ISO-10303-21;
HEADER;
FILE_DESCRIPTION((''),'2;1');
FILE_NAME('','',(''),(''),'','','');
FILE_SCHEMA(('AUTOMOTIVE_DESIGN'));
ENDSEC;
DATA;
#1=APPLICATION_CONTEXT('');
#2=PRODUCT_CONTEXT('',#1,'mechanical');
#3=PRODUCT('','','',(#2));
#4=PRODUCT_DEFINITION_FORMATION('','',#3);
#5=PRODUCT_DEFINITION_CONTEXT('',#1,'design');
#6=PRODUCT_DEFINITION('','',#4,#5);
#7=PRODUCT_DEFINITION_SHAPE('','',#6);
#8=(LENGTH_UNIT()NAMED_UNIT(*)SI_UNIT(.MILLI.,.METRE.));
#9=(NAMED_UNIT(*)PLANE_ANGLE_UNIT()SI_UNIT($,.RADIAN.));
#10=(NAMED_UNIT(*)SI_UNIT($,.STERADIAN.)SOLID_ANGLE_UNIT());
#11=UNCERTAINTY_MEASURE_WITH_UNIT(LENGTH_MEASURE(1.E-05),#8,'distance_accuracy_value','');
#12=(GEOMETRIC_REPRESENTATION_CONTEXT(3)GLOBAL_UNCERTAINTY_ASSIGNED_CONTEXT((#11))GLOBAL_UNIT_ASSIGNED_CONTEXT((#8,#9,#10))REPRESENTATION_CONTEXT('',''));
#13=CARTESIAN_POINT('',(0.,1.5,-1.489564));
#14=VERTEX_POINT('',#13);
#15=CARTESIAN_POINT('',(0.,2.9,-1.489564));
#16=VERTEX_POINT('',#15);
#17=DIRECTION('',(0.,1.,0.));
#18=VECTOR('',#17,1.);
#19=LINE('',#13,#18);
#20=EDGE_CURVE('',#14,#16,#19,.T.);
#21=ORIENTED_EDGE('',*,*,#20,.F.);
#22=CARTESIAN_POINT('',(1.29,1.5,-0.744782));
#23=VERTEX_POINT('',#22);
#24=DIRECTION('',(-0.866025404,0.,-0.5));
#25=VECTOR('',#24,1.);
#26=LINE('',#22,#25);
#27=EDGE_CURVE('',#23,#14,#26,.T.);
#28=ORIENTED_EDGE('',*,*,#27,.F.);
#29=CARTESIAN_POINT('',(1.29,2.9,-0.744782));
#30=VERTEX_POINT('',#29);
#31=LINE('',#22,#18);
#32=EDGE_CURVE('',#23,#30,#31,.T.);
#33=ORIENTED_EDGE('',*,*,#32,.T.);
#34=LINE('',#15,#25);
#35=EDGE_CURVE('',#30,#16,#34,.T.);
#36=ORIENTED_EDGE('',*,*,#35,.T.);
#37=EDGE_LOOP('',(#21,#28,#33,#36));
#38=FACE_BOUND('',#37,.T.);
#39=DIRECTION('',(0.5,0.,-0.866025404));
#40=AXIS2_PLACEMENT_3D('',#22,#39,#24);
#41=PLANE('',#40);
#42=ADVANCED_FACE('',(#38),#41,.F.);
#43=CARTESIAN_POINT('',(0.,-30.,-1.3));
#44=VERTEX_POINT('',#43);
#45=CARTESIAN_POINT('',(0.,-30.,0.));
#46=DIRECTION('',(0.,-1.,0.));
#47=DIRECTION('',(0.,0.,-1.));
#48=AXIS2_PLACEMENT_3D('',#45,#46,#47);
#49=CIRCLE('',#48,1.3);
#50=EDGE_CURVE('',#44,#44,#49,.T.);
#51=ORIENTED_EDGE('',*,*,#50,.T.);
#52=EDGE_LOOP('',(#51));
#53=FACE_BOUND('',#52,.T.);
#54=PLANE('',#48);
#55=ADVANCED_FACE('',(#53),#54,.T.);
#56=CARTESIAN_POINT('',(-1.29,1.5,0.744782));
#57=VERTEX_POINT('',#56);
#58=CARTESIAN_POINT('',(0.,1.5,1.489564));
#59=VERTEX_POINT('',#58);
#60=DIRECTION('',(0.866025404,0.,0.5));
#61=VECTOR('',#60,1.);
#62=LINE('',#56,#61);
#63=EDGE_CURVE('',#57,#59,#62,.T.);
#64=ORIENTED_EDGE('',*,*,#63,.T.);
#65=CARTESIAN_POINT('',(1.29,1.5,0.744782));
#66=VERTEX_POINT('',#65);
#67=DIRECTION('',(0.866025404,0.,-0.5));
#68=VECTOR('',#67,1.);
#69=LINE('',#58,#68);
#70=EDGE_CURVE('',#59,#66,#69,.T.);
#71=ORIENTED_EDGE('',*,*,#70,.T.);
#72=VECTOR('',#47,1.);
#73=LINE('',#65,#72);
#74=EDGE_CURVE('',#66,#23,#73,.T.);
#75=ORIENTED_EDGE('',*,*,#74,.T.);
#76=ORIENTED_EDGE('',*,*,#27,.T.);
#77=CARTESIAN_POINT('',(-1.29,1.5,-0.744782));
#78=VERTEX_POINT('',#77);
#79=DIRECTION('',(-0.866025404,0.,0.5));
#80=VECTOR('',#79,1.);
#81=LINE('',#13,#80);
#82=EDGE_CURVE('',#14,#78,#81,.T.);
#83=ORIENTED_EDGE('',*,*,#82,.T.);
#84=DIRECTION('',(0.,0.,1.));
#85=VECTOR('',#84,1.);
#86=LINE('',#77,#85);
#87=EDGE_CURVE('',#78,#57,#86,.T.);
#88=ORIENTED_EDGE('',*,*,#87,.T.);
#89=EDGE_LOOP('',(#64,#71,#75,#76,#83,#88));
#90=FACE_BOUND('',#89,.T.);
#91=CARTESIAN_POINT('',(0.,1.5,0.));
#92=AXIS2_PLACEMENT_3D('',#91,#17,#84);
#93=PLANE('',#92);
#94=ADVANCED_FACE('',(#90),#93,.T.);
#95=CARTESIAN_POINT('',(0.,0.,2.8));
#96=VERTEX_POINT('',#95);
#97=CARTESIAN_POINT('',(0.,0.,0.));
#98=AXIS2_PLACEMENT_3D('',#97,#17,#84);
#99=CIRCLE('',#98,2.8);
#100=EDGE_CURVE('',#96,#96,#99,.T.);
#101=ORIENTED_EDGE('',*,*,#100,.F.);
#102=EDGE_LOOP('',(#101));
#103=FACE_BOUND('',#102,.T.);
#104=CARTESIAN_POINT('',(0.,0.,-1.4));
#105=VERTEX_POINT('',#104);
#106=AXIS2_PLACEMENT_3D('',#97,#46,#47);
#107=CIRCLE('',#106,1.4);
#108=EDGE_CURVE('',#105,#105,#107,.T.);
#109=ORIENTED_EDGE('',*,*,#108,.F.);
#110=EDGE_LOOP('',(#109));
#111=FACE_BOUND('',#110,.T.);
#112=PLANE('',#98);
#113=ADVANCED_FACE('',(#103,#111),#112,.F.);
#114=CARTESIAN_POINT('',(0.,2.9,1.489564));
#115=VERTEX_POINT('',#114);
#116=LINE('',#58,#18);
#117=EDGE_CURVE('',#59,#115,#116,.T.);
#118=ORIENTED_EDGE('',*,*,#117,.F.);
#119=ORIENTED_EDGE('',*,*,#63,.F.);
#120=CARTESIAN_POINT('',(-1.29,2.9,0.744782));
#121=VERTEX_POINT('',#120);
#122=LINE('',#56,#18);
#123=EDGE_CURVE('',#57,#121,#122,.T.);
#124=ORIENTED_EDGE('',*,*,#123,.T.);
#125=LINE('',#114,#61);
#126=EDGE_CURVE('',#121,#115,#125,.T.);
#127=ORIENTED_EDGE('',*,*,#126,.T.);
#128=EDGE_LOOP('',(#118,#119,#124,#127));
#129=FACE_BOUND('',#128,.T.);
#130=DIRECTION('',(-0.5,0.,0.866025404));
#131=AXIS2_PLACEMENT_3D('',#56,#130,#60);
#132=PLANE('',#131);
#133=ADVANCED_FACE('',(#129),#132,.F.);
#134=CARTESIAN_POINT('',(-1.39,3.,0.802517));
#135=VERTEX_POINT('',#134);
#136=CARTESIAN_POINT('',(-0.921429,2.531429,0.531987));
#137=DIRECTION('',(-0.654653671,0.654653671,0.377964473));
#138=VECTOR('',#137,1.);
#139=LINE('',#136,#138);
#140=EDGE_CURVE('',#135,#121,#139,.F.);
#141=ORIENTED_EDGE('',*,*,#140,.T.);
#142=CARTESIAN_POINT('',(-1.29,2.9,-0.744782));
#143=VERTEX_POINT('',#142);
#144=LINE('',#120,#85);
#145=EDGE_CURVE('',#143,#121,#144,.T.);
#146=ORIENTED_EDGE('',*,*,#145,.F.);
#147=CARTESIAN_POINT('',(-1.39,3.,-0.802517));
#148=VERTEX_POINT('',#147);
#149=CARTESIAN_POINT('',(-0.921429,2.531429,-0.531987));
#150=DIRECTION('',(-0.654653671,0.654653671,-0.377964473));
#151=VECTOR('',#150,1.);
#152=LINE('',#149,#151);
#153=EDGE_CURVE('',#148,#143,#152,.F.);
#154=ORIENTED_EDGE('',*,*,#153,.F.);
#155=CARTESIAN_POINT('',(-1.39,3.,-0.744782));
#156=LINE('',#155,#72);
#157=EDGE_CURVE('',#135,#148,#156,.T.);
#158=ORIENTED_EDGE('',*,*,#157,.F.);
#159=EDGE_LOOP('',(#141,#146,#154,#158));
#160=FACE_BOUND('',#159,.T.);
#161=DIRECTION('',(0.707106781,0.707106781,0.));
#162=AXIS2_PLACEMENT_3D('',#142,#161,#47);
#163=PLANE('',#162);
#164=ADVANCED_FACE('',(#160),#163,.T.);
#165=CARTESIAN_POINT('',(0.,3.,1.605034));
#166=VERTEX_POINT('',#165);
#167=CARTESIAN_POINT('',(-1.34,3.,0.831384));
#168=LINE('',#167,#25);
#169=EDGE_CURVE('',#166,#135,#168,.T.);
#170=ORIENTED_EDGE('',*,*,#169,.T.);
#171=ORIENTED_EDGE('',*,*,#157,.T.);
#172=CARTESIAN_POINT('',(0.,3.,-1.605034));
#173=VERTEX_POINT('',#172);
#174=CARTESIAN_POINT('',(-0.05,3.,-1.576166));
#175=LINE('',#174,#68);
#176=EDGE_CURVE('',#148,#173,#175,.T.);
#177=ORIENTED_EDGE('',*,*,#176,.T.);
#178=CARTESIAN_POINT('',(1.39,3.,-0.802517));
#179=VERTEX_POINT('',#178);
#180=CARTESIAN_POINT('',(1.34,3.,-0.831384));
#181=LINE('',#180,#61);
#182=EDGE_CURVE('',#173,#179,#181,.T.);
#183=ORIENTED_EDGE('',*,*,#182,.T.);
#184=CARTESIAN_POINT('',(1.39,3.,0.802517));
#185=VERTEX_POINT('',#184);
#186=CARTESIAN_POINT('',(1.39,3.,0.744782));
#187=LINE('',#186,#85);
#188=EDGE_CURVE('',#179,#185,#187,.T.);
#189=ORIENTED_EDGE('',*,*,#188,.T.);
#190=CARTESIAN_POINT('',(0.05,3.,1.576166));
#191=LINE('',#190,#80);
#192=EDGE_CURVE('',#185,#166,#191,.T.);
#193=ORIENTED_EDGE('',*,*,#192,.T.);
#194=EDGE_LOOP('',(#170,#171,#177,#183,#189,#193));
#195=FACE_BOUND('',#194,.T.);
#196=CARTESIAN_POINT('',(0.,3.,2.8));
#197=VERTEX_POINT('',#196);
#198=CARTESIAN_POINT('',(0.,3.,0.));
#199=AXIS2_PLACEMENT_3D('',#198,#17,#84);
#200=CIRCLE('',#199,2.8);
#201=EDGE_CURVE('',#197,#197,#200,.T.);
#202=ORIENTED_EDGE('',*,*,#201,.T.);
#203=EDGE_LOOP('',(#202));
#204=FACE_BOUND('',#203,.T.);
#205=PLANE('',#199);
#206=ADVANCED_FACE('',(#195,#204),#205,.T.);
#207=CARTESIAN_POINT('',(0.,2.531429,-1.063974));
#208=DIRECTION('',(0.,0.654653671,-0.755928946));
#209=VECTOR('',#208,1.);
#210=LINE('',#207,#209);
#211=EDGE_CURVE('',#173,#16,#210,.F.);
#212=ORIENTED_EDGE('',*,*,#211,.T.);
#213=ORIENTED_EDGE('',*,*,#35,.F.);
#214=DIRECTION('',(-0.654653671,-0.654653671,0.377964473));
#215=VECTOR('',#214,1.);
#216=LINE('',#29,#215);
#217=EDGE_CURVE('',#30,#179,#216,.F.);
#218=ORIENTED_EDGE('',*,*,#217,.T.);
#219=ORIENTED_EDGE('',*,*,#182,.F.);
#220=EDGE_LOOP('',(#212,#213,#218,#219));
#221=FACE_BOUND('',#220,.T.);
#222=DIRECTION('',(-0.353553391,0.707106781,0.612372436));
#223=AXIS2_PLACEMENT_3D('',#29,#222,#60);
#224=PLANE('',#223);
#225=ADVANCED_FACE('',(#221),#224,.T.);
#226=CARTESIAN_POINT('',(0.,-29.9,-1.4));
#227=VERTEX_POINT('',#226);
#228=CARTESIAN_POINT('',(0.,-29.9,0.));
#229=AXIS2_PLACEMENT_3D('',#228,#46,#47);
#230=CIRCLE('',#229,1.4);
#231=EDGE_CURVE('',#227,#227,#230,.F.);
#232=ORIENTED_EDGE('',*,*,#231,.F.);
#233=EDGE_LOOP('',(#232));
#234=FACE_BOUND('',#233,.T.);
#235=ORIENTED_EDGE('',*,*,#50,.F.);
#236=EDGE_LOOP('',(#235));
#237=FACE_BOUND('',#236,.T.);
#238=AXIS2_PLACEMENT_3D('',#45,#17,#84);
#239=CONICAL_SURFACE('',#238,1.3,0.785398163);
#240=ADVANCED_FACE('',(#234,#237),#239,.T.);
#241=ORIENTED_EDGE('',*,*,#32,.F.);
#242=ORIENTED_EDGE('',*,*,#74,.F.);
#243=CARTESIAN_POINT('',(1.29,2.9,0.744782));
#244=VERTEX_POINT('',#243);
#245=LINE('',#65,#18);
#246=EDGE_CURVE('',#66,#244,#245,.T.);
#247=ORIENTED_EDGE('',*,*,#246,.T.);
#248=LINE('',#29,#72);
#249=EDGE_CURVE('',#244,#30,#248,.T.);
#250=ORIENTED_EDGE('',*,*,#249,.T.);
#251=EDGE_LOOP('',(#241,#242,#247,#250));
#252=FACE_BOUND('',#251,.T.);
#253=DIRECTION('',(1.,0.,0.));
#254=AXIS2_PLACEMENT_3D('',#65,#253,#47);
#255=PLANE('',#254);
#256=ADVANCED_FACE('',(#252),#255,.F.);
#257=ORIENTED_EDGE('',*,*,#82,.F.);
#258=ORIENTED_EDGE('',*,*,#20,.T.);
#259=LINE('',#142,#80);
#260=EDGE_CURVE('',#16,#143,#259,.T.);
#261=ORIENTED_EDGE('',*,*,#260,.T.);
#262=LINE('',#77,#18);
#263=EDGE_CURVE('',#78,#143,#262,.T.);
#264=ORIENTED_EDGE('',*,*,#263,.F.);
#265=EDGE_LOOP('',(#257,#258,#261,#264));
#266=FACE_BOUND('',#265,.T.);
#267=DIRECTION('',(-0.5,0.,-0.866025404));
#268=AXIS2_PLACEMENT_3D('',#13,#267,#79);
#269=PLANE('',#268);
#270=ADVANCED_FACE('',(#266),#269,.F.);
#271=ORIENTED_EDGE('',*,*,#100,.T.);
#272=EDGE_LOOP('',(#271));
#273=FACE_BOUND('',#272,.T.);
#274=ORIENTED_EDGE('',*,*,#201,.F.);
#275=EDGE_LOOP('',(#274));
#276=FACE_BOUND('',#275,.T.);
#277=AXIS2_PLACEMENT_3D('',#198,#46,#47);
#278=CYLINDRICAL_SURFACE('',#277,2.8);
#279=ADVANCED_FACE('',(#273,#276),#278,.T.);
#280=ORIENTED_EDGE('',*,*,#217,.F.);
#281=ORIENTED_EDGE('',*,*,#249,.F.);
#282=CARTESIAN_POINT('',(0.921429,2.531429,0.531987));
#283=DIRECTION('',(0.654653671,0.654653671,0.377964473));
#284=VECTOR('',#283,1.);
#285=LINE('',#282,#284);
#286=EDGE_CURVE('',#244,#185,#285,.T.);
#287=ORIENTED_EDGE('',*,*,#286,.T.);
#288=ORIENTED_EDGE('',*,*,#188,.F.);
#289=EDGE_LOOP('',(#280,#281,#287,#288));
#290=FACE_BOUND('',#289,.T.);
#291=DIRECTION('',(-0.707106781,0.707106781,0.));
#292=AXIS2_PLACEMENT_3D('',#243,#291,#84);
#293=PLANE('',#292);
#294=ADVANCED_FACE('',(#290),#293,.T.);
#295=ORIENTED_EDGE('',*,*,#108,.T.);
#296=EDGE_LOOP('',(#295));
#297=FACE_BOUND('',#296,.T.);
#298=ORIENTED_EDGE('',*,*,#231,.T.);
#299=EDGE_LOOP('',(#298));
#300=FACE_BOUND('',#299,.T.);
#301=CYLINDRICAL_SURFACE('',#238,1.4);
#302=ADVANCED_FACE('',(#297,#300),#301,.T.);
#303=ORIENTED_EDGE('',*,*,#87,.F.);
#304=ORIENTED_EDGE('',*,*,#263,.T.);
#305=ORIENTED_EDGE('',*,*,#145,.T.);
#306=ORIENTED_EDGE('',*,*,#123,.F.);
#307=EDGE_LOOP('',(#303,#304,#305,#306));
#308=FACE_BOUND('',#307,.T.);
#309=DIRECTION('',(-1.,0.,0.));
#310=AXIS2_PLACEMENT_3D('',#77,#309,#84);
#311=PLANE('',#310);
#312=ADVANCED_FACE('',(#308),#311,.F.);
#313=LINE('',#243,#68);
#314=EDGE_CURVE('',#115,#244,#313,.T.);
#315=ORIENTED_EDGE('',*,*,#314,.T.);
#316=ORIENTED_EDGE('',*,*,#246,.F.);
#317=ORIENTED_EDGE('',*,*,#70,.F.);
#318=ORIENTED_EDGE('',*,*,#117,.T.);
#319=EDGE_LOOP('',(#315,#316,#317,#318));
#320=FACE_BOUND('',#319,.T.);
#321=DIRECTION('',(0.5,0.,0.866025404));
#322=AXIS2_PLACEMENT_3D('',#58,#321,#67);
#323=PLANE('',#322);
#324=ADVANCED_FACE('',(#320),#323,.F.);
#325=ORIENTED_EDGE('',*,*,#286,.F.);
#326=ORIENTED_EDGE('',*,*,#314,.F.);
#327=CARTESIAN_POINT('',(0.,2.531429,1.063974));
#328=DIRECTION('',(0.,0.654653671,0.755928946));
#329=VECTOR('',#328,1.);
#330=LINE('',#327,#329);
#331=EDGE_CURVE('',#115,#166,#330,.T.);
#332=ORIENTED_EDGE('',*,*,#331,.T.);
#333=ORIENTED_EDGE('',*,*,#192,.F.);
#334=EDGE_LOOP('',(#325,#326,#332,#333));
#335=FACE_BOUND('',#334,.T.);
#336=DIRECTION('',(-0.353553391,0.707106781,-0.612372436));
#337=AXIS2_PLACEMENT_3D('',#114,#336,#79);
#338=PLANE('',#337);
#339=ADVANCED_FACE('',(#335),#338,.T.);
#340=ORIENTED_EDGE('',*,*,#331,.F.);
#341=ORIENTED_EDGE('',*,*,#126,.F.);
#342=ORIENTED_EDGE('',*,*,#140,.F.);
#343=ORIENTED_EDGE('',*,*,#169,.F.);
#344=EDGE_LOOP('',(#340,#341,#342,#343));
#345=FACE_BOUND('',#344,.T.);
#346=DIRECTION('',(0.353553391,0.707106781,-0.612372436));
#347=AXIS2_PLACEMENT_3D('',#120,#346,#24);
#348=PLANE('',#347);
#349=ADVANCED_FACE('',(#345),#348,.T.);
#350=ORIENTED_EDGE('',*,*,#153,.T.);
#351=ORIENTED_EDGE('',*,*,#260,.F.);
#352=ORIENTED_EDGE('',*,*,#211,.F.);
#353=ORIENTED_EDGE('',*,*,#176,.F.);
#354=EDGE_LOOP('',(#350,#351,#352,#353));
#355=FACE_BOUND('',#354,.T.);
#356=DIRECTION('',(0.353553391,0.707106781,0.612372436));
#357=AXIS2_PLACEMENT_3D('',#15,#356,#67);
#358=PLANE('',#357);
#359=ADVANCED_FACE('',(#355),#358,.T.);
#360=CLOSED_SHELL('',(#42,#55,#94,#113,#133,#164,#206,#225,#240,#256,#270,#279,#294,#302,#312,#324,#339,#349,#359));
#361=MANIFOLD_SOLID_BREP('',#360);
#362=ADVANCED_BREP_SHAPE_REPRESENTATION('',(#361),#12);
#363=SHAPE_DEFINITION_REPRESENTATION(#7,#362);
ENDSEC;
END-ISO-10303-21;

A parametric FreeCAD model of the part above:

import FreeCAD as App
import Part
import Sketcher
from FreeCAD import Vector
Q = App.Units.Quantity


def edges_at(feature, points):
    """Names of the edges that pass closest to the given points."""
    edges = feature.Shape.Edges
    near = lambda p: min(range(len(edges)), key=lambda i: edges[i].distToShape(Part.Vertex(*p))[0])
    return sorted({f"Edge{near(p) + 1}" for p in points})


def add_polygon(sketch, points):
    """Adds a closed chain of lines whose ends are joined by coincident constraints."""
    first, n = sketch.GeometryCount, len(points)
    for a, b in zip(points, points[1:] + points[:1]):
        sketch.addGeometry(Part.LineSegment(App.Vector(*a, 0), App.Vector(*b, 0)), False)
    for i in range(n):
        sketch.addConstraint(Sketcher.Constraint("Coincident", first + i, 2, first + (i + 1) % n, 1))

doc = App.newDocument("Part")
body = doc.addObject("PartDesign::Body", "Body")

# Sketch on XZ plane
sketch1 = body.newObject("Sketcher::SketchObject", "Sketch")
sketch1.AttachmentSupport = (doc.getObject("XZ_Plane"), [""])
sketch1.MapMode = "FlatFace"
sketch1.addGeometry(Part.Circle(Vector(0, 0, 0), Vector(0, 0, 1), 2.8), False)
sketch1.addConstraint([
    Sketcher.Constraint("Coincident", 0, 3, -1, 1),
    Sketcher.Constraint("Diameter", 0, 5.6),
])
pad1 = body.newObject("PartDesign::Pad", "Pad")
pad1.Profile = sketch1
pad1.Length = 3
pad1.Reversed = True

# Sketch on XZ plane
sketch2 = body.newObject("Sketcher::SketchObject", "Sketch001")
sketch2.AttachmentSupport = (doc.getObject("XZ_Plane"), [""])
sketch2.MapMode = "FlatFace"
sketch2.AttachmentOffset = App.Placement(Vector(0, 0, -3), App.Rotation())
add_polygon(sketch2, [(0, 1.489564), (1.29, 0.744782), (1.29, -0.744782), (0, -1.489564), (-1.29, -0.744782), (-1.29, 0.744782)])  # lines 0-5
sketch2.addConstraint([
    Sketcher.Constraint("Vertical", 1),
    Sketcher.Constraint("Vertical", 4),
    Sketcher.Constraint("Symmetric", 0, 2, 3, 2, -1, 1),
    Sketcher.Constraint("Symmetric", 2, 2, 5, 2, -1, 1),
    Sketcher.Constraint("PointOnObject", 2, 2, -2),
    Sketcher.Constraint("Parallel", 2, 5),
    Sketcher.Constraint("Horizontal", 1, 2, 3, 2),
    Sketcher.Constraint("Angle", 0, Q("-30 deg")),
    Sketcher.Constraint("DistanceX", -1, 1, 0, 2, 1.29),
    Sketcher.Constraint("DistanceY", 1, 2, 1, 1, 1.489564),
])
pocket1 = body.newObject("PartDesign::Pocket", "Pocket")
pocket1.Profile = sketch2
pocket1.Length = 1.5
pocket1.Reversed = True

# Sketch on XZ plane
sketch3 = body.newObject("Sketcher::SketchObject", "Sketch002")
sketch3.AttachmentSupport = (doc.getObject("XZ_Plane"), [""])
sketch3.MapMode = "FlatFace"
sketch3.addGeometry(Part.Circle(Vector(0, 0, 0), Vector(0, 0, 1), 1.4), False)
sketch3.addConstraint([
    Sketcher.Constraint("Coincident", 0, 3, -1, 1),
    Sketcher.Constraint("Diameter", 0, 2.8),
])
pad2 = body.newObject("PartDesign::Pad", "Pad001")
pad2.Profile = sketch3
pad2.Length = 30
doc.recompute()

chamfer = body.newObject("PartDesign::Chamfer", "Chamfer")
chamfer.Base = (pad2, edges_at(pad2, [
    (-0.645, 3, 1.117),
    (0.645, 3, 1.117),
    (1.29, 3, 0),
    (0.645, 3, -1.117),
    (-0.645, 3, -1.117),
    (-1.29, 3, 0),
    (-1.4, -30, 0),
]))
chamfer.Size = 0.1

doc.recompute()
